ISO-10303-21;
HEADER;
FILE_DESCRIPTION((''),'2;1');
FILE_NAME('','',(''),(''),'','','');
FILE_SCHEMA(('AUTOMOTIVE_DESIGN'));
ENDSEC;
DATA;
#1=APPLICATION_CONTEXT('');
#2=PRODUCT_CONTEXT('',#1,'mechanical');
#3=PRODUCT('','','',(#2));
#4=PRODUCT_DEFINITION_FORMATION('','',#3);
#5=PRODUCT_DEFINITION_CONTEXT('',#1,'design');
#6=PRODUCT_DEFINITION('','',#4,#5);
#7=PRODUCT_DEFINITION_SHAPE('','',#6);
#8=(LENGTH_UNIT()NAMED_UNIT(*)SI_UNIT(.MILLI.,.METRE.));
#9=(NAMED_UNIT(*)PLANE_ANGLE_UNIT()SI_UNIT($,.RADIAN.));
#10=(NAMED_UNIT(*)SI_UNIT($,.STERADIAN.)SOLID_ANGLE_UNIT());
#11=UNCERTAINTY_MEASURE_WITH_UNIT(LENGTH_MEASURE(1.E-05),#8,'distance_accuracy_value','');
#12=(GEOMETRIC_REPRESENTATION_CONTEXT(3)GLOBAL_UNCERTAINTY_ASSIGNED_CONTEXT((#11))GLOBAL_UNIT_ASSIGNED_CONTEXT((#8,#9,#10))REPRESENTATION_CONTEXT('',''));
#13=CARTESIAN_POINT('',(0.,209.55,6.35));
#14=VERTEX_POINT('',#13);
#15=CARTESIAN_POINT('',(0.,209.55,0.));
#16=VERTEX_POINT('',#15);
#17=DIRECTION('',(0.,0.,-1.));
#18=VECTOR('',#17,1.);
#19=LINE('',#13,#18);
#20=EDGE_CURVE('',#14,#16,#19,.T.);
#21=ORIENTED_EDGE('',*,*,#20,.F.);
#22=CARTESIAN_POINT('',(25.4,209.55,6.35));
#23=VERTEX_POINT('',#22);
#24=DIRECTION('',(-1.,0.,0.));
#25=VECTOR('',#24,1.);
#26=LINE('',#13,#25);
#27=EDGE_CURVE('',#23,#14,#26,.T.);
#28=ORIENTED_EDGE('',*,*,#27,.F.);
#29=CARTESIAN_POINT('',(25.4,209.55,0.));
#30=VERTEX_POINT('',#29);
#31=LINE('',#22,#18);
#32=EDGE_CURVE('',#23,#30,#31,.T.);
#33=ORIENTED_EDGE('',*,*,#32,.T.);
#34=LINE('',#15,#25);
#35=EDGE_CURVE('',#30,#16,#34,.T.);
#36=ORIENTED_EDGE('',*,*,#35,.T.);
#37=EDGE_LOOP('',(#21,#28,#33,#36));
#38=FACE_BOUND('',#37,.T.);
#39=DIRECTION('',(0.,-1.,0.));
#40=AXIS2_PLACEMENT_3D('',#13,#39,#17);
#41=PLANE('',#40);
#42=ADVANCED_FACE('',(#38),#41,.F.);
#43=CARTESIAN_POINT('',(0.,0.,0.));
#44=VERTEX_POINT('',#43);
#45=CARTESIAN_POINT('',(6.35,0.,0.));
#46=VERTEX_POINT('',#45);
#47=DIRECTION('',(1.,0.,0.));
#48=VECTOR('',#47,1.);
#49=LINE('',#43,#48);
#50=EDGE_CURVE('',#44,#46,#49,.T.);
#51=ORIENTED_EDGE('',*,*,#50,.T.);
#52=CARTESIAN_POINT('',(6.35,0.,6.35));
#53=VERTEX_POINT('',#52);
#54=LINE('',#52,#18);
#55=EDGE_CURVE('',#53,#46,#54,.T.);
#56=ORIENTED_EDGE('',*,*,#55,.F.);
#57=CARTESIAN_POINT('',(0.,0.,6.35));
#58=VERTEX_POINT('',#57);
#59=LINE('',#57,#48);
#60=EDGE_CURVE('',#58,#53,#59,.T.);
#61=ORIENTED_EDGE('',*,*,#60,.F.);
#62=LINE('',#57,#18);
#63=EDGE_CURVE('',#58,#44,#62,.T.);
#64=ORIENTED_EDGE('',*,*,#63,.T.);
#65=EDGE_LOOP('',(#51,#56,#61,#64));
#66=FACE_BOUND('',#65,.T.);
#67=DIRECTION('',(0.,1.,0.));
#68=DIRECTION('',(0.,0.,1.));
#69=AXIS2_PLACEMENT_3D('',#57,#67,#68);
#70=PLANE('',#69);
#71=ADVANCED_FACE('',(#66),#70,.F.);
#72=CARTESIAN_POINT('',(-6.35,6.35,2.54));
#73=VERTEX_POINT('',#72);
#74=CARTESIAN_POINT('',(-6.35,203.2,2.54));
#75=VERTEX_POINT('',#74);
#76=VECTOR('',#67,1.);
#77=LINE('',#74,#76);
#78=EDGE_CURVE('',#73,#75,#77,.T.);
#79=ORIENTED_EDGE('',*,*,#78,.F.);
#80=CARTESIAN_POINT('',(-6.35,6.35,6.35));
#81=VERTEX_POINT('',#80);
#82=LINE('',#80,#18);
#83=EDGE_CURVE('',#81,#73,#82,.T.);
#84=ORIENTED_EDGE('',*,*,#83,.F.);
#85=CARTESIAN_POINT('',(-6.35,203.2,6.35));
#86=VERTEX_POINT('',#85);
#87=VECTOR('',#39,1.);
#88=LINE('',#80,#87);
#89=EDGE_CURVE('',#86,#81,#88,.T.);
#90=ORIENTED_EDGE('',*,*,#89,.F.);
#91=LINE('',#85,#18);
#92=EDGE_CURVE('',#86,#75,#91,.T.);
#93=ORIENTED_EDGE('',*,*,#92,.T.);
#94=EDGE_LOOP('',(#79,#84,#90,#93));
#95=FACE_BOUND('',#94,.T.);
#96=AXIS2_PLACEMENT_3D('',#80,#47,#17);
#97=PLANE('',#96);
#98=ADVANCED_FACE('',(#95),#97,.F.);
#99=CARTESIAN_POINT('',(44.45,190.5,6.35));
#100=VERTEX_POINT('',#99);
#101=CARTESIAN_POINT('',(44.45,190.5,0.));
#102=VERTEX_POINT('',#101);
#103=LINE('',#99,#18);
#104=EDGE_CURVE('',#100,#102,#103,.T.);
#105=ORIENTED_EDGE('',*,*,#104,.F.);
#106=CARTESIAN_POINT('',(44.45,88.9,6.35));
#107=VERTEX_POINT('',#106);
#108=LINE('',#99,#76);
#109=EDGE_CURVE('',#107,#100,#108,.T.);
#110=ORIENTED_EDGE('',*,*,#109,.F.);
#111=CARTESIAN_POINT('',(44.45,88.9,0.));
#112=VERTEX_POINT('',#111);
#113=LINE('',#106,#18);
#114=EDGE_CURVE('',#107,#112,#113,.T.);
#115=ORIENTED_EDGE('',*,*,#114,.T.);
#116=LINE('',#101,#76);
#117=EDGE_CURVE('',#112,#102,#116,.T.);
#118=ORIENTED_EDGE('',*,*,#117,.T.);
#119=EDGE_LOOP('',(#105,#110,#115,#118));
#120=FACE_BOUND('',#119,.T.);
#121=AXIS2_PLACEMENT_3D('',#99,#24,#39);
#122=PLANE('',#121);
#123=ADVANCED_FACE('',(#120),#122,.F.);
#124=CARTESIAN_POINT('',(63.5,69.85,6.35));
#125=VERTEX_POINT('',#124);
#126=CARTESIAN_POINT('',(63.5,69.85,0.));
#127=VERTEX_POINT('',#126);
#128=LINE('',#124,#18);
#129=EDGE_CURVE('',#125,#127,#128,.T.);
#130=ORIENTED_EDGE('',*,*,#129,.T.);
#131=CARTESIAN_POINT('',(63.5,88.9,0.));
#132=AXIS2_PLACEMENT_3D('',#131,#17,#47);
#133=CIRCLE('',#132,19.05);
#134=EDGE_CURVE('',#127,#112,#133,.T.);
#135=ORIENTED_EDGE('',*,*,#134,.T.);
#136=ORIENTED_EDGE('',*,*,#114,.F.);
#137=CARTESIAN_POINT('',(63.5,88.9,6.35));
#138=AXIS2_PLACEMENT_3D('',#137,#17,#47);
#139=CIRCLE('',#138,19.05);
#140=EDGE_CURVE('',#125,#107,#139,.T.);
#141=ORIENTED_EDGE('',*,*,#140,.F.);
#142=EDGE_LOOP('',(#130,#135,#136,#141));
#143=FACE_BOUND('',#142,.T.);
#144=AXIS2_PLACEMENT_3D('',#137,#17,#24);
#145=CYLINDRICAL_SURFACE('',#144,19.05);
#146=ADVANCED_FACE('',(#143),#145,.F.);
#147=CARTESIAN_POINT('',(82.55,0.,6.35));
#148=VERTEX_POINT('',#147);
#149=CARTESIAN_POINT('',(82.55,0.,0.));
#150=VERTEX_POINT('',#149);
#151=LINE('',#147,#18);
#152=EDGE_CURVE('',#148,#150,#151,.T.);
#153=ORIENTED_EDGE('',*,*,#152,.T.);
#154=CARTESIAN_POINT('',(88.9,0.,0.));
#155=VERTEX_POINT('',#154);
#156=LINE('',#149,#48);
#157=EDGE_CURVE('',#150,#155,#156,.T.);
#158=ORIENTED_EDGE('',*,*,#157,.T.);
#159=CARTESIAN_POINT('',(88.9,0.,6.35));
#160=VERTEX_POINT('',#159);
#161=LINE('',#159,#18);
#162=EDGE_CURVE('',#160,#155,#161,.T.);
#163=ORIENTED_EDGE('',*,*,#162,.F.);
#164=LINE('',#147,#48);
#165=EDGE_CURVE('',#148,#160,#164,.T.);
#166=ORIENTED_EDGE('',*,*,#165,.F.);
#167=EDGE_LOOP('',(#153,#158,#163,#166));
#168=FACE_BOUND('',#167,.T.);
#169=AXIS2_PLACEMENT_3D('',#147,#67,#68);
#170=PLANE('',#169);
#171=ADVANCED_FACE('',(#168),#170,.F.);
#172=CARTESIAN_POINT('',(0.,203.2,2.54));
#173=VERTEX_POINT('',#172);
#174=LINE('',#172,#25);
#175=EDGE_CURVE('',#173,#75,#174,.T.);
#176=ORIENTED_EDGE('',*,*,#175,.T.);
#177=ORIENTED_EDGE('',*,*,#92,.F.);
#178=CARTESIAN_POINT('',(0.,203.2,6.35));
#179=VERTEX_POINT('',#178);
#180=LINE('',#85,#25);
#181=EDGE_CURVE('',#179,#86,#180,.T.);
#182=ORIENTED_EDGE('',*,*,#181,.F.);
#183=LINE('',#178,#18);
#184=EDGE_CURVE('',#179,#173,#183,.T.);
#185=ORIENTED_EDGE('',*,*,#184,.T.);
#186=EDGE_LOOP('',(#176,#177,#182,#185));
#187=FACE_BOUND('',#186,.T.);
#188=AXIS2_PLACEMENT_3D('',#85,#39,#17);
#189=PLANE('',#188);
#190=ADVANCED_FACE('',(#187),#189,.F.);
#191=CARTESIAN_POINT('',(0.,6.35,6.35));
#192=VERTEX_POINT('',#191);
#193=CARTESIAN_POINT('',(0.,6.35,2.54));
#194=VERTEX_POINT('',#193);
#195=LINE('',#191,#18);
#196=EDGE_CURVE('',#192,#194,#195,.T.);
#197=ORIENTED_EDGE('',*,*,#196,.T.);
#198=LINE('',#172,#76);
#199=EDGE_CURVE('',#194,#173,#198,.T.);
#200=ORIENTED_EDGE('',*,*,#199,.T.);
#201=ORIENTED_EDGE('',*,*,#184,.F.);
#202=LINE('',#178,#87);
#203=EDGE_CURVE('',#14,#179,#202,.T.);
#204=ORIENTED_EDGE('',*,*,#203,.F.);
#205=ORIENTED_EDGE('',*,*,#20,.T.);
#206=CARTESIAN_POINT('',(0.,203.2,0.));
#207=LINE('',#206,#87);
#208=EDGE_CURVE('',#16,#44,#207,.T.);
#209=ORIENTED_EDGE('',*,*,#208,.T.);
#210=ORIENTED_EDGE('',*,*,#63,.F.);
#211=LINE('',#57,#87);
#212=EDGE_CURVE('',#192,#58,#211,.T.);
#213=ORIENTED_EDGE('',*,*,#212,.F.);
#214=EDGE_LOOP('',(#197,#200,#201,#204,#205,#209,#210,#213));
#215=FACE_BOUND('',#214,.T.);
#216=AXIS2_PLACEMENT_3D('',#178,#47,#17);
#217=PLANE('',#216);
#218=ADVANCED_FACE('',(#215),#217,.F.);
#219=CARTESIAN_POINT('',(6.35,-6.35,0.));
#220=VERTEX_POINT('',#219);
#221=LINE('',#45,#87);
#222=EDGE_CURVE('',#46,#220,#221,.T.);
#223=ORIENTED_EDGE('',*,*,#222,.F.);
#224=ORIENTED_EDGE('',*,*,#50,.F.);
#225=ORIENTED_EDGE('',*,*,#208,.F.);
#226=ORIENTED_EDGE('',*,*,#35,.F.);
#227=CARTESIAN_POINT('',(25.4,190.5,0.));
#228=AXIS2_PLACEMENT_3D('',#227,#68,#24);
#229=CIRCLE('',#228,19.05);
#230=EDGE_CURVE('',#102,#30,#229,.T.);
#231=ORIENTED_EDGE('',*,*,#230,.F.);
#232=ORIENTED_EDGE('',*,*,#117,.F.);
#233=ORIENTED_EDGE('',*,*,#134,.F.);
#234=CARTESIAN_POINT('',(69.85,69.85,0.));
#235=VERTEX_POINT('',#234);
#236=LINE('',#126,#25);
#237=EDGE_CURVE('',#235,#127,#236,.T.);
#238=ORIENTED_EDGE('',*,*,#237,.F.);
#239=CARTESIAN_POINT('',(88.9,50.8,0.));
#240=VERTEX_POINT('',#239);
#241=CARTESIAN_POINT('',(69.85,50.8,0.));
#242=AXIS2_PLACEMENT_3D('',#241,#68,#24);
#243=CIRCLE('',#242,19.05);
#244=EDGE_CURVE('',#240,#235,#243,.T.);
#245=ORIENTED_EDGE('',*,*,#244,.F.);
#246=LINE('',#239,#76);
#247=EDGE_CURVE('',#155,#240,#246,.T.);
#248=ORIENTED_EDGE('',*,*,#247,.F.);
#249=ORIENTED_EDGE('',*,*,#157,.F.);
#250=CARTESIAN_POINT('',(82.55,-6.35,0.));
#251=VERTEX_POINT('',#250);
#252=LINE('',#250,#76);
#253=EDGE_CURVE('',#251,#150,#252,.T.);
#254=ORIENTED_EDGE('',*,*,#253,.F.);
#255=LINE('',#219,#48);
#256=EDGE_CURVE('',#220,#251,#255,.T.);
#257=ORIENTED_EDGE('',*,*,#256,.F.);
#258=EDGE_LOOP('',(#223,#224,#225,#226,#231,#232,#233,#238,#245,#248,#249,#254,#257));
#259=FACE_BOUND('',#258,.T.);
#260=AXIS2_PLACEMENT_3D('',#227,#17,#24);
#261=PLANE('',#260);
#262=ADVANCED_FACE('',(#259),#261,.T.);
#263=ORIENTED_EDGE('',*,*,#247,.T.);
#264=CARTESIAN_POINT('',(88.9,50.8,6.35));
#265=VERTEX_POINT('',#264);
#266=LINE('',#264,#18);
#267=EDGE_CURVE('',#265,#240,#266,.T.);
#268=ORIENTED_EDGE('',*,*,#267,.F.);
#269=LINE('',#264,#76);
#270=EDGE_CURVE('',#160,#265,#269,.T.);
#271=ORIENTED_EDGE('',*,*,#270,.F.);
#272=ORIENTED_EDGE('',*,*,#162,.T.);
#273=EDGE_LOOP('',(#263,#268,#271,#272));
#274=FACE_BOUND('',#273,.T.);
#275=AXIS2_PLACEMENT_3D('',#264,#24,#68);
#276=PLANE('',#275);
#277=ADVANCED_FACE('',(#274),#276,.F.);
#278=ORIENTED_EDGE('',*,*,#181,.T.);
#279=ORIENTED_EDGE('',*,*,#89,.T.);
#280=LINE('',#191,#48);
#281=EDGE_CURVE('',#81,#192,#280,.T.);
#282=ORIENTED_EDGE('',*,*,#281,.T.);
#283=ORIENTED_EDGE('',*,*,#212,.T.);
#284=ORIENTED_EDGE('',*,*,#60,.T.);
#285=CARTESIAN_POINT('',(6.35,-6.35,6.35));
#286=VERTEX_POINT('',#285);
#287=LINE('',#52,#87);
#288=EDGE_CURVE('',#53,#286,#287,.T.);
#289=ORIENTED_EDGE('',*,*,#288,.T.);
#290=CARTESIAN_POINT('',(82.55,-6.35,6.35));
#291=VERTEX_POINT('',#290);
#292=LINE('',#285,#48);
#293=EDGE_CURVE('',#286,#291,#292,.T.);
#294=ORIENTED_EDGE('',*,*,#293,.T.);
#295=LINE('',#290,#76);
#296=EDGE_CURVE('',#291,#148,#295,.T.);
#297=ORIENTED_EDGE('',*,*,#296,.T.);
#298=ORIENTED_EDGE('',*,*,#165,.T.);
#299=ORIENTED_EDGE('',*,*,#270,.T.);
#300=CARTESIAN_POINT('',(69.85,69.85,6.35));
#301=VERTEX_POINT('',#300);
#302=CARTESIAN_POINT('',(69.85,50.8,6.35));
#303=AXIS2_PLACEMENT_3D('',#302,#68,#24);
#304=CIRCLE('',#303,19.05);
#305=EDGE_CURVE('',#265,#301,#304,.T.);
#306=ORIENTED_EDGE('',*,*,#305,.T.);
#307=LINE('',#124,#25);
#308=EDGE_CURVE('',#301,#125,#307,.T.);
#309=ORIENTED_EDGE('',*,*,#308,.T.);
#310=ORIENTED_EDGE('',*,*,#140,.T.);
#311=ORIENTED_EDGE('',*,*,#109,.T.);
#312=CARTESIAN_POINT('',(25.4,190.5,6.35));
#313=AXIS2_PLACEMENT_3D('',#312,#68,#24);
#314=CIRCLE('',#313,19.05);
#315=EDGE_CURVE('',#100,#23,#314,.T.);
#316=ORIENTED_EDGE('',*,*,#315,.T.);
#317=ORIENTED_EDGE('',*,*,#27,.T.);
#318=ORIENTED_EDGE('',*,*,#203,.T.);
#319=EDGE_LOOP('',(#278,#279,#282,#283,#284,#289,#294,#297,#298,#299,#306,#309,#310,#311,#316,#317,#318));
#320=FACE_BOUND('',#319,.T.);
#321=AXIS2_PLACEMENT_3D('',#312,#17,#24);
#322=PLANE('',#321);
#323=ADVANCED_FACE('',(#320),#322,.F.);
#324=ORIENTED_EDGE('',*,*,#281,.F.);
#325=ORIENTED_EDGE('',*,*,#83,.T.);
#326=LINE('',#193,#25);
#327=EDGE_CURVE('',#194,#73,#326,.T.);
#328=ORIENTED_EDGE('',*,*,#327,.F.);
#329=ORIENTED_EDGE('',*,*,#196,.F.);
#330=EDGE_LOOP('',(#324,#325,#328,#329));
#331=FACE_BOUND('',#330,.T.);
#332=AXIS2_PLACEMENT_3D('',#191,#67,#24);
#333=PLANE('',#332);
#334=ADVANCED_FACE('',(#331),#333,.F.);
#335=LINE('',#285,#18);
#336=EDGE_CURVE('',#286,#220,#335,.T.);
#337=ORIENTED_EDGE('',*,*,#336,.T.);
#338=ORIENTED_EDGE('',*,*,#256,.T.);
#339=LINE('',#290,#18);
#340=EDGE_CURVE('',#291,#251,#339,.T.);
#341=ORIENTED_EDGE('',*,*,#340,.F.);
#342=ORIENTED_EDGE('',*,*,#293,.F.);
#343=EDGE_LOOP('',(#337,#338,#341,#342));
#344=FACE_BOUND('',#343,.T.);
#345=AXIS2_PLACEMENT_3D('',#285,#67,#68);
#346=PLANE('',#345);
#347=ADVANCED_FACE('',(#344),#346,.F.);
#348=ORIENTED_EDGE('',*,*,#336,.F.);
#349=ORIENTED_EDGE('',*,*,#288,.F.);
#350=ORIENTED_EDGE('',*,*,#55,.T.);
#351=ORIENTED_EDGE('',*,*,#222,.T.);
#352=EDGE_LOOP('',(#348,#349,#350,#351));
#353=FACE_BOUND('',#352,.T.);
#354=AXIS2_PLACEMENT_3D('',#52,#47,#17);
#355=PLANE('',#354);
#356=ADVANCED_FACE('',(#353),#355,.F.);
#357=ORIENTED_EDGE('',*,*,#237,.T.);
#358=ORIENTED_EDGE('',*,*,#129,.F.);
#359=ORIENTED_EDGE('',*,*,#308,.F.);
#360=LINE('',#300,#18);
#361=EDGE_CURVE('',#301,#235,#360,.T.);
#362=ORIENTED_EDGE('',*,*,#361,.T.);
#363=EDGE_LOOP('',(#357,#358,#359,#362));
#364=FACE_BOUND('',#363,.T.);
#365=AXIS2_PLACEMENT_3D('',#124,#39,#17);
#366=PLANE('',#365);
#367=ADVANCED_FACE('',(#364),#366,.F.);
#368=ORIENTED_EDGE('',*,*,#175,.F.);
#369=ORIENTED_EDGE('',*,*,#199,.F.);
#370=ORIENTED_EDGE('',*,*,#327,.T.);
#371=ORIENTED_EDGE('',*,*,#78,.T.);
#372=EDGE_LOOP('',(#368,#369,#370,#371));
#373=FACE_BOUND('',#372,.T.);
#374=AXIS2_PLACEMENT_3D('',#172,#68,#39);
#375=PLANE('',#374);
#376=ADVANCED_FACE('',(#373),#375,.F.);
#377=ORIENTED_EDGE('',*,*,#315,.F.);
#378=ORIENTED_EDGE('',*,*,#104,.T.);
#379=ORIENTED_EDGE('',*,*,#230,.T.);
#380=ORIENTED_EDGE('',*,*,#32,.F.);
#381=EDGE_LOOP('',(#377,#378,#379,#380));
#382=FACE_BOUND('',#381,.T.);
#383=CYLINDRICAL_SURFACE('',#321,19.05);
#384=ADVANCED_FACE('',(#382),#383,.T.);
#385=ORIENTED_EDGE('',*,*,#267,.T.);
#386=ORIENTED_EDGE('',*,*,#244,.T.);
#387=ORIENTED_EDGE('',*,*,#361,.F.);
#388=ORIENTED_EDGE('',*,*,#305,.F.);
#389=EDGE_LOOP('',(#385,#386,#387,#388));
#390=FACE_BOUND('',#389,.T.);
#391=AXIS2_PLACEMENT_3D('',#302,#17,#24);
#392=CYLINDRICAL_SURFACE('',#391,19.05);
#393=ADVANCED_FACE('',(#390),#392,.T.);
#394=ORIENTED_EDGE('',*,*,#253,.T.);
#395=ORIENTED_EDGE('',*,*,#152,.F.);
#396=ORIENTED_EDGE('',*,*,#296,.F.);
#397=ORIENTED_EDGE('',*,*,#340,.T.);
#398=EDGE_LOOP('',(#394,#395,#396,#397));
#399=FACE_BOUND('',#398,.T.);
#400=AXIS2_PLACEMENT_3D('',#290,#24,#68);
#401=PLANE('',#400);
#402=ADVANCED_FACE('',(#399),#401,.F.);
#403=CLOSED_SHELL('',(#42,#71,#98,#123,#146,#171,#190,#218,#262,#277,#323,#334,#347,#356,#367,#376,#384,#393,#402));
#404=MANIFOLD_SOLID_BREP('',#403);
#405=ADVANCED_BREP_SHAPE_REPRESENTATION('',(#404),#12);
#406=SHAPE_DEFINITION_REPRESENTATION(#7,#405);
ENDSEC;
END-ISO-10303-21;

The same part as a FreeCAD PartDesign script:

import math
import FreeCAD as App
import Part
import Sketcher

V = App.Vector
Q = App.Units.Quantity

doc = App.newDocument("Part")
body = doc.addObject("PartDesign::Body", "Body")

# Sketch on XY plane
sketch1 = body.newObject("Sketcher::SketchObject", "Sketch")
sketch1.AttachmentSupport = (doc.getObject("XY_Plane"), [""])
sketch1.MapMode = "FlatFace"
sketch1.addGeometry([
    Part.LineSegment(V(0, 0, 0), V(6.35, 0, 0)),  # 0
    Part.LineSegment(V(6.35, 0, 0), V(6.35, -6.35, 0)),  # 1
    Part.LineSegment(V(6.35, -6.35, 0), V(82.55, -6.35, 0)),  # 2
    Part.LineSegment(V(82.55, -6.35, 0), V(82.55, 0, 0)),  # 3
    Part.LineSegment(V(82.55, 0, 0), V(88.9, 0, 0)),  # 4
    Part.LineSegment(V(88.9, 0, 0), V(88.9, 50.8, 0)),  # 5
    Part.ArcOfCircle(Part.Circle(V(69.85, 50.8, 0), V(0, 0, 1), 19.05), math.radians(0), math.radians(90)),  # 6
    Part.LineSegment(V(69.85, 69.85, 0), V(63.5, 69.85, 0)),  # 7
    Part.ArcOfCircle(Part.Circle(V(63.5, 88.9, 0), V(0, 0, 1), 19.05), math.radians(180), math.radians(270)),  # 8
    Part.LineSegment(V(44.45, 88.9, 0), V(44.45, 190.5, 0)),  # 9
    Part.ArcOfCircle(Part.Circle(V(25.4, 190.5, 0), V(0, 0, 1), 19.05), math.radians(0), math.radians(90)),  # 10
    Part.LineSegment(V(25.4, 209.55, 0), V(0, 209.55, 0)),  # 11
    Part.LineSegment(V(0, 209.55, 0), V(0, 203.2, 0)),  # 12
    Part.LineSegment(V(0, 203.2, 0), V(-6.35, 203.2, 0)),  # 13
    Part.LineSegment(V(-6.35, 203.2, 0), V(-6.35, 6.35, 0)),  # 14
    Part.LineSegment(V(-6.35, 6.35, 0), V(0, 6.35, 0)),  # 15
    Part.LineSegment(V(0, 6.35, 0), V(0, 0, 0)),  # 16
], False)
sketch1.addConstraint([
    Sketcher.Constraint("Coincident", 0, 2, 1, 1),
    Sketcher.Constraint("Coincident", 1, 2, 2, 1),
    Sketcher.Constraint("Coincident", 2, 2, 3, 1),
    Sketcher.Constraint("Coincident", 3, 2, 4, 1),
    Sketcher.Constraint("Coincident", 4, 2, 5, 1),
    Sketcher.Constraint("Tangent", 5, 2, 6, 1),
    Sketcher.Constraint("Tangent", 6, 2, 7, 1),
    Sketcher.Constraint("Tangent", 7, 2, 8, 2),
    Sketcher.Constraint("Tangent", 8, 1, 9, 1),
    Sketcher.Constraint("Tangent", 9, 2, 10, 1),
    Sketcher.Constraint("Tangent", 10, 2, 11, 1),
    Sketcher.Constraint("Coincident", 11, 2, 12, 1),
    Sketcher.Constraint("Coincident", 12, 2, 13, 1),
    Sketcher.Constraint("Coincident", 13, 2, 14, 1),
    Sketcher.Constraint("Coincident", 14, 2, 15, 1),
    Sketcher.Constraint("Coincident", 15, 2, 16, 1),
    Sketcher.Constraint("Coincident", 16, 2, 0, 1),
    Sketcher.Constraint("Horizontal", 0),
    Sketcher.Constraint("Vertical", 1),
    Sketcher.Constraint("Horizontal", 2),
    Sketcher.Constraint("Vertical", 3),
    Sketcher.Constraint("Horizontal", 4),
    Sketcher.Constraint("Vertical", 5),
    Sketcher.Constraint("Horizontal", 7),
    Sketcher.Constraint("Vertical", 9),
    Sketcher.Constraint("Horizontal", 11),
    Sketcher.Constraint("Vertical", 12),
    Sketcher.Constraint("Horizontal", 13),
    Sketcher.Constraint("Vertical", 14),
    Sketcher.Constraint("Horizontal", 15),
    Sketcher.Constraint("Vertical", 16),
    Sketcher.Constraint("Coincident", 16, 2, -1, 1),
    Sketcher.Constraint("Equal", 6, 8),
    Sketcher.Constraint("Equal", 8, 10),
    Sketcher.Constraint("Symmetric", 1, 2, 14, 2, -1, 1),
    Sketcher.Constraint("PointOnObject", 3, 2, -1),
    Sketcher.Constraint("PointOnObject", 11, 2, -2),
    Sketcher.Constraint("Equal", 0, 4),
    Sketcher.Constraint("Equal", 4, 7),
    Sketcher.Constraint("Equal", 15, 1),
    Sketcher.Constraint("Equal", 3, 12),
    Sketcher.Constraint("DistanceX", 2, 1, 2, 2, Q("3 in")),
    Sketcher.Constraint("DistanceX", 11, 2, 11, 1, Q("1 in")),
    Sketcher.Constraint("DistanceY", 5, 1, 5, 2, Q("2 in")),
    Sketcher.Constraint("DistanceY", 9, 1, 9, 2, Q("4 in")),
    Sketcher.Constraint("Radius", 6, Q("0.75 in")),
])
pad1 = body.newObject("PartDesign::Pad", "Pad")
pad1.Profile = sketch1
pad1.Length = Q("0.25 in")

# Sketch on YZ plane
sketch2 = body.newObject("Sketcher::SketchObject", "Sketch001")
sketch2.AttachmentSupport = (doc.getObject("YZ_Plane"), [""])
sketch2.MapMode = "FlatFace"
sketch2.AttachmentOffset = App.Placement(V(0, 0, -0.25 * 25.4), App.Rotation())
sketch2.addGeometry([
    Part.LineSegment(V(203.2, 0, 0), V(6.35, 0, 0)),
    Part.LineSegment(V(6.35, 0, 0), V(6.35, 2.54, 0)),
    Part.LineSegment(V(6.35, 2.54, 0), V(203.2, 2.54, 0)),
    Part.LineSegment(V(203.2, 2.54, 0), V(203.2, 0, 0)),
], False)
sketch2.addConstraint([
    Sketcher.Constraint("Coincident", 0, 2, 1, 1),
    Sketcher.Constraint("Coincident", 1, 2, 2, 1),
    Sketcher.Constraint("Coincident", 2, 2, 3, 1),
    Sketcher.Constraint("Coincident", 3, 2, 0, 1),
    Sketcher.Constraint("Horizontal", 0),
    Sketcher.Constraint("Vertical", 1),
    Sketcher.Constraint("Horizontal", 2),
    Sketcher.Constraint("Vertical", 3),
    Sketcher.Constraint("PointOnObject", 0, 2, -1),
    Sketcher.Constraint("DistanceY", 1, 1, 1, 2, Q("0.1 in")),
    Sketcher.Constraint("DistanceX", -1, 1, 2, 2, Q("8 in")),
    Sketcher.Constraint("DistanceX", 0, 2, 0, 1, Q("7.75 in")),
])
pocket1 = body.newObject("PartDesign::Pocket", "Pocket")
pocket1.Profile = sketch2
pocket1.Length = Q("0.25 in")
pocket1.Reversed = True

doc.recompute()
